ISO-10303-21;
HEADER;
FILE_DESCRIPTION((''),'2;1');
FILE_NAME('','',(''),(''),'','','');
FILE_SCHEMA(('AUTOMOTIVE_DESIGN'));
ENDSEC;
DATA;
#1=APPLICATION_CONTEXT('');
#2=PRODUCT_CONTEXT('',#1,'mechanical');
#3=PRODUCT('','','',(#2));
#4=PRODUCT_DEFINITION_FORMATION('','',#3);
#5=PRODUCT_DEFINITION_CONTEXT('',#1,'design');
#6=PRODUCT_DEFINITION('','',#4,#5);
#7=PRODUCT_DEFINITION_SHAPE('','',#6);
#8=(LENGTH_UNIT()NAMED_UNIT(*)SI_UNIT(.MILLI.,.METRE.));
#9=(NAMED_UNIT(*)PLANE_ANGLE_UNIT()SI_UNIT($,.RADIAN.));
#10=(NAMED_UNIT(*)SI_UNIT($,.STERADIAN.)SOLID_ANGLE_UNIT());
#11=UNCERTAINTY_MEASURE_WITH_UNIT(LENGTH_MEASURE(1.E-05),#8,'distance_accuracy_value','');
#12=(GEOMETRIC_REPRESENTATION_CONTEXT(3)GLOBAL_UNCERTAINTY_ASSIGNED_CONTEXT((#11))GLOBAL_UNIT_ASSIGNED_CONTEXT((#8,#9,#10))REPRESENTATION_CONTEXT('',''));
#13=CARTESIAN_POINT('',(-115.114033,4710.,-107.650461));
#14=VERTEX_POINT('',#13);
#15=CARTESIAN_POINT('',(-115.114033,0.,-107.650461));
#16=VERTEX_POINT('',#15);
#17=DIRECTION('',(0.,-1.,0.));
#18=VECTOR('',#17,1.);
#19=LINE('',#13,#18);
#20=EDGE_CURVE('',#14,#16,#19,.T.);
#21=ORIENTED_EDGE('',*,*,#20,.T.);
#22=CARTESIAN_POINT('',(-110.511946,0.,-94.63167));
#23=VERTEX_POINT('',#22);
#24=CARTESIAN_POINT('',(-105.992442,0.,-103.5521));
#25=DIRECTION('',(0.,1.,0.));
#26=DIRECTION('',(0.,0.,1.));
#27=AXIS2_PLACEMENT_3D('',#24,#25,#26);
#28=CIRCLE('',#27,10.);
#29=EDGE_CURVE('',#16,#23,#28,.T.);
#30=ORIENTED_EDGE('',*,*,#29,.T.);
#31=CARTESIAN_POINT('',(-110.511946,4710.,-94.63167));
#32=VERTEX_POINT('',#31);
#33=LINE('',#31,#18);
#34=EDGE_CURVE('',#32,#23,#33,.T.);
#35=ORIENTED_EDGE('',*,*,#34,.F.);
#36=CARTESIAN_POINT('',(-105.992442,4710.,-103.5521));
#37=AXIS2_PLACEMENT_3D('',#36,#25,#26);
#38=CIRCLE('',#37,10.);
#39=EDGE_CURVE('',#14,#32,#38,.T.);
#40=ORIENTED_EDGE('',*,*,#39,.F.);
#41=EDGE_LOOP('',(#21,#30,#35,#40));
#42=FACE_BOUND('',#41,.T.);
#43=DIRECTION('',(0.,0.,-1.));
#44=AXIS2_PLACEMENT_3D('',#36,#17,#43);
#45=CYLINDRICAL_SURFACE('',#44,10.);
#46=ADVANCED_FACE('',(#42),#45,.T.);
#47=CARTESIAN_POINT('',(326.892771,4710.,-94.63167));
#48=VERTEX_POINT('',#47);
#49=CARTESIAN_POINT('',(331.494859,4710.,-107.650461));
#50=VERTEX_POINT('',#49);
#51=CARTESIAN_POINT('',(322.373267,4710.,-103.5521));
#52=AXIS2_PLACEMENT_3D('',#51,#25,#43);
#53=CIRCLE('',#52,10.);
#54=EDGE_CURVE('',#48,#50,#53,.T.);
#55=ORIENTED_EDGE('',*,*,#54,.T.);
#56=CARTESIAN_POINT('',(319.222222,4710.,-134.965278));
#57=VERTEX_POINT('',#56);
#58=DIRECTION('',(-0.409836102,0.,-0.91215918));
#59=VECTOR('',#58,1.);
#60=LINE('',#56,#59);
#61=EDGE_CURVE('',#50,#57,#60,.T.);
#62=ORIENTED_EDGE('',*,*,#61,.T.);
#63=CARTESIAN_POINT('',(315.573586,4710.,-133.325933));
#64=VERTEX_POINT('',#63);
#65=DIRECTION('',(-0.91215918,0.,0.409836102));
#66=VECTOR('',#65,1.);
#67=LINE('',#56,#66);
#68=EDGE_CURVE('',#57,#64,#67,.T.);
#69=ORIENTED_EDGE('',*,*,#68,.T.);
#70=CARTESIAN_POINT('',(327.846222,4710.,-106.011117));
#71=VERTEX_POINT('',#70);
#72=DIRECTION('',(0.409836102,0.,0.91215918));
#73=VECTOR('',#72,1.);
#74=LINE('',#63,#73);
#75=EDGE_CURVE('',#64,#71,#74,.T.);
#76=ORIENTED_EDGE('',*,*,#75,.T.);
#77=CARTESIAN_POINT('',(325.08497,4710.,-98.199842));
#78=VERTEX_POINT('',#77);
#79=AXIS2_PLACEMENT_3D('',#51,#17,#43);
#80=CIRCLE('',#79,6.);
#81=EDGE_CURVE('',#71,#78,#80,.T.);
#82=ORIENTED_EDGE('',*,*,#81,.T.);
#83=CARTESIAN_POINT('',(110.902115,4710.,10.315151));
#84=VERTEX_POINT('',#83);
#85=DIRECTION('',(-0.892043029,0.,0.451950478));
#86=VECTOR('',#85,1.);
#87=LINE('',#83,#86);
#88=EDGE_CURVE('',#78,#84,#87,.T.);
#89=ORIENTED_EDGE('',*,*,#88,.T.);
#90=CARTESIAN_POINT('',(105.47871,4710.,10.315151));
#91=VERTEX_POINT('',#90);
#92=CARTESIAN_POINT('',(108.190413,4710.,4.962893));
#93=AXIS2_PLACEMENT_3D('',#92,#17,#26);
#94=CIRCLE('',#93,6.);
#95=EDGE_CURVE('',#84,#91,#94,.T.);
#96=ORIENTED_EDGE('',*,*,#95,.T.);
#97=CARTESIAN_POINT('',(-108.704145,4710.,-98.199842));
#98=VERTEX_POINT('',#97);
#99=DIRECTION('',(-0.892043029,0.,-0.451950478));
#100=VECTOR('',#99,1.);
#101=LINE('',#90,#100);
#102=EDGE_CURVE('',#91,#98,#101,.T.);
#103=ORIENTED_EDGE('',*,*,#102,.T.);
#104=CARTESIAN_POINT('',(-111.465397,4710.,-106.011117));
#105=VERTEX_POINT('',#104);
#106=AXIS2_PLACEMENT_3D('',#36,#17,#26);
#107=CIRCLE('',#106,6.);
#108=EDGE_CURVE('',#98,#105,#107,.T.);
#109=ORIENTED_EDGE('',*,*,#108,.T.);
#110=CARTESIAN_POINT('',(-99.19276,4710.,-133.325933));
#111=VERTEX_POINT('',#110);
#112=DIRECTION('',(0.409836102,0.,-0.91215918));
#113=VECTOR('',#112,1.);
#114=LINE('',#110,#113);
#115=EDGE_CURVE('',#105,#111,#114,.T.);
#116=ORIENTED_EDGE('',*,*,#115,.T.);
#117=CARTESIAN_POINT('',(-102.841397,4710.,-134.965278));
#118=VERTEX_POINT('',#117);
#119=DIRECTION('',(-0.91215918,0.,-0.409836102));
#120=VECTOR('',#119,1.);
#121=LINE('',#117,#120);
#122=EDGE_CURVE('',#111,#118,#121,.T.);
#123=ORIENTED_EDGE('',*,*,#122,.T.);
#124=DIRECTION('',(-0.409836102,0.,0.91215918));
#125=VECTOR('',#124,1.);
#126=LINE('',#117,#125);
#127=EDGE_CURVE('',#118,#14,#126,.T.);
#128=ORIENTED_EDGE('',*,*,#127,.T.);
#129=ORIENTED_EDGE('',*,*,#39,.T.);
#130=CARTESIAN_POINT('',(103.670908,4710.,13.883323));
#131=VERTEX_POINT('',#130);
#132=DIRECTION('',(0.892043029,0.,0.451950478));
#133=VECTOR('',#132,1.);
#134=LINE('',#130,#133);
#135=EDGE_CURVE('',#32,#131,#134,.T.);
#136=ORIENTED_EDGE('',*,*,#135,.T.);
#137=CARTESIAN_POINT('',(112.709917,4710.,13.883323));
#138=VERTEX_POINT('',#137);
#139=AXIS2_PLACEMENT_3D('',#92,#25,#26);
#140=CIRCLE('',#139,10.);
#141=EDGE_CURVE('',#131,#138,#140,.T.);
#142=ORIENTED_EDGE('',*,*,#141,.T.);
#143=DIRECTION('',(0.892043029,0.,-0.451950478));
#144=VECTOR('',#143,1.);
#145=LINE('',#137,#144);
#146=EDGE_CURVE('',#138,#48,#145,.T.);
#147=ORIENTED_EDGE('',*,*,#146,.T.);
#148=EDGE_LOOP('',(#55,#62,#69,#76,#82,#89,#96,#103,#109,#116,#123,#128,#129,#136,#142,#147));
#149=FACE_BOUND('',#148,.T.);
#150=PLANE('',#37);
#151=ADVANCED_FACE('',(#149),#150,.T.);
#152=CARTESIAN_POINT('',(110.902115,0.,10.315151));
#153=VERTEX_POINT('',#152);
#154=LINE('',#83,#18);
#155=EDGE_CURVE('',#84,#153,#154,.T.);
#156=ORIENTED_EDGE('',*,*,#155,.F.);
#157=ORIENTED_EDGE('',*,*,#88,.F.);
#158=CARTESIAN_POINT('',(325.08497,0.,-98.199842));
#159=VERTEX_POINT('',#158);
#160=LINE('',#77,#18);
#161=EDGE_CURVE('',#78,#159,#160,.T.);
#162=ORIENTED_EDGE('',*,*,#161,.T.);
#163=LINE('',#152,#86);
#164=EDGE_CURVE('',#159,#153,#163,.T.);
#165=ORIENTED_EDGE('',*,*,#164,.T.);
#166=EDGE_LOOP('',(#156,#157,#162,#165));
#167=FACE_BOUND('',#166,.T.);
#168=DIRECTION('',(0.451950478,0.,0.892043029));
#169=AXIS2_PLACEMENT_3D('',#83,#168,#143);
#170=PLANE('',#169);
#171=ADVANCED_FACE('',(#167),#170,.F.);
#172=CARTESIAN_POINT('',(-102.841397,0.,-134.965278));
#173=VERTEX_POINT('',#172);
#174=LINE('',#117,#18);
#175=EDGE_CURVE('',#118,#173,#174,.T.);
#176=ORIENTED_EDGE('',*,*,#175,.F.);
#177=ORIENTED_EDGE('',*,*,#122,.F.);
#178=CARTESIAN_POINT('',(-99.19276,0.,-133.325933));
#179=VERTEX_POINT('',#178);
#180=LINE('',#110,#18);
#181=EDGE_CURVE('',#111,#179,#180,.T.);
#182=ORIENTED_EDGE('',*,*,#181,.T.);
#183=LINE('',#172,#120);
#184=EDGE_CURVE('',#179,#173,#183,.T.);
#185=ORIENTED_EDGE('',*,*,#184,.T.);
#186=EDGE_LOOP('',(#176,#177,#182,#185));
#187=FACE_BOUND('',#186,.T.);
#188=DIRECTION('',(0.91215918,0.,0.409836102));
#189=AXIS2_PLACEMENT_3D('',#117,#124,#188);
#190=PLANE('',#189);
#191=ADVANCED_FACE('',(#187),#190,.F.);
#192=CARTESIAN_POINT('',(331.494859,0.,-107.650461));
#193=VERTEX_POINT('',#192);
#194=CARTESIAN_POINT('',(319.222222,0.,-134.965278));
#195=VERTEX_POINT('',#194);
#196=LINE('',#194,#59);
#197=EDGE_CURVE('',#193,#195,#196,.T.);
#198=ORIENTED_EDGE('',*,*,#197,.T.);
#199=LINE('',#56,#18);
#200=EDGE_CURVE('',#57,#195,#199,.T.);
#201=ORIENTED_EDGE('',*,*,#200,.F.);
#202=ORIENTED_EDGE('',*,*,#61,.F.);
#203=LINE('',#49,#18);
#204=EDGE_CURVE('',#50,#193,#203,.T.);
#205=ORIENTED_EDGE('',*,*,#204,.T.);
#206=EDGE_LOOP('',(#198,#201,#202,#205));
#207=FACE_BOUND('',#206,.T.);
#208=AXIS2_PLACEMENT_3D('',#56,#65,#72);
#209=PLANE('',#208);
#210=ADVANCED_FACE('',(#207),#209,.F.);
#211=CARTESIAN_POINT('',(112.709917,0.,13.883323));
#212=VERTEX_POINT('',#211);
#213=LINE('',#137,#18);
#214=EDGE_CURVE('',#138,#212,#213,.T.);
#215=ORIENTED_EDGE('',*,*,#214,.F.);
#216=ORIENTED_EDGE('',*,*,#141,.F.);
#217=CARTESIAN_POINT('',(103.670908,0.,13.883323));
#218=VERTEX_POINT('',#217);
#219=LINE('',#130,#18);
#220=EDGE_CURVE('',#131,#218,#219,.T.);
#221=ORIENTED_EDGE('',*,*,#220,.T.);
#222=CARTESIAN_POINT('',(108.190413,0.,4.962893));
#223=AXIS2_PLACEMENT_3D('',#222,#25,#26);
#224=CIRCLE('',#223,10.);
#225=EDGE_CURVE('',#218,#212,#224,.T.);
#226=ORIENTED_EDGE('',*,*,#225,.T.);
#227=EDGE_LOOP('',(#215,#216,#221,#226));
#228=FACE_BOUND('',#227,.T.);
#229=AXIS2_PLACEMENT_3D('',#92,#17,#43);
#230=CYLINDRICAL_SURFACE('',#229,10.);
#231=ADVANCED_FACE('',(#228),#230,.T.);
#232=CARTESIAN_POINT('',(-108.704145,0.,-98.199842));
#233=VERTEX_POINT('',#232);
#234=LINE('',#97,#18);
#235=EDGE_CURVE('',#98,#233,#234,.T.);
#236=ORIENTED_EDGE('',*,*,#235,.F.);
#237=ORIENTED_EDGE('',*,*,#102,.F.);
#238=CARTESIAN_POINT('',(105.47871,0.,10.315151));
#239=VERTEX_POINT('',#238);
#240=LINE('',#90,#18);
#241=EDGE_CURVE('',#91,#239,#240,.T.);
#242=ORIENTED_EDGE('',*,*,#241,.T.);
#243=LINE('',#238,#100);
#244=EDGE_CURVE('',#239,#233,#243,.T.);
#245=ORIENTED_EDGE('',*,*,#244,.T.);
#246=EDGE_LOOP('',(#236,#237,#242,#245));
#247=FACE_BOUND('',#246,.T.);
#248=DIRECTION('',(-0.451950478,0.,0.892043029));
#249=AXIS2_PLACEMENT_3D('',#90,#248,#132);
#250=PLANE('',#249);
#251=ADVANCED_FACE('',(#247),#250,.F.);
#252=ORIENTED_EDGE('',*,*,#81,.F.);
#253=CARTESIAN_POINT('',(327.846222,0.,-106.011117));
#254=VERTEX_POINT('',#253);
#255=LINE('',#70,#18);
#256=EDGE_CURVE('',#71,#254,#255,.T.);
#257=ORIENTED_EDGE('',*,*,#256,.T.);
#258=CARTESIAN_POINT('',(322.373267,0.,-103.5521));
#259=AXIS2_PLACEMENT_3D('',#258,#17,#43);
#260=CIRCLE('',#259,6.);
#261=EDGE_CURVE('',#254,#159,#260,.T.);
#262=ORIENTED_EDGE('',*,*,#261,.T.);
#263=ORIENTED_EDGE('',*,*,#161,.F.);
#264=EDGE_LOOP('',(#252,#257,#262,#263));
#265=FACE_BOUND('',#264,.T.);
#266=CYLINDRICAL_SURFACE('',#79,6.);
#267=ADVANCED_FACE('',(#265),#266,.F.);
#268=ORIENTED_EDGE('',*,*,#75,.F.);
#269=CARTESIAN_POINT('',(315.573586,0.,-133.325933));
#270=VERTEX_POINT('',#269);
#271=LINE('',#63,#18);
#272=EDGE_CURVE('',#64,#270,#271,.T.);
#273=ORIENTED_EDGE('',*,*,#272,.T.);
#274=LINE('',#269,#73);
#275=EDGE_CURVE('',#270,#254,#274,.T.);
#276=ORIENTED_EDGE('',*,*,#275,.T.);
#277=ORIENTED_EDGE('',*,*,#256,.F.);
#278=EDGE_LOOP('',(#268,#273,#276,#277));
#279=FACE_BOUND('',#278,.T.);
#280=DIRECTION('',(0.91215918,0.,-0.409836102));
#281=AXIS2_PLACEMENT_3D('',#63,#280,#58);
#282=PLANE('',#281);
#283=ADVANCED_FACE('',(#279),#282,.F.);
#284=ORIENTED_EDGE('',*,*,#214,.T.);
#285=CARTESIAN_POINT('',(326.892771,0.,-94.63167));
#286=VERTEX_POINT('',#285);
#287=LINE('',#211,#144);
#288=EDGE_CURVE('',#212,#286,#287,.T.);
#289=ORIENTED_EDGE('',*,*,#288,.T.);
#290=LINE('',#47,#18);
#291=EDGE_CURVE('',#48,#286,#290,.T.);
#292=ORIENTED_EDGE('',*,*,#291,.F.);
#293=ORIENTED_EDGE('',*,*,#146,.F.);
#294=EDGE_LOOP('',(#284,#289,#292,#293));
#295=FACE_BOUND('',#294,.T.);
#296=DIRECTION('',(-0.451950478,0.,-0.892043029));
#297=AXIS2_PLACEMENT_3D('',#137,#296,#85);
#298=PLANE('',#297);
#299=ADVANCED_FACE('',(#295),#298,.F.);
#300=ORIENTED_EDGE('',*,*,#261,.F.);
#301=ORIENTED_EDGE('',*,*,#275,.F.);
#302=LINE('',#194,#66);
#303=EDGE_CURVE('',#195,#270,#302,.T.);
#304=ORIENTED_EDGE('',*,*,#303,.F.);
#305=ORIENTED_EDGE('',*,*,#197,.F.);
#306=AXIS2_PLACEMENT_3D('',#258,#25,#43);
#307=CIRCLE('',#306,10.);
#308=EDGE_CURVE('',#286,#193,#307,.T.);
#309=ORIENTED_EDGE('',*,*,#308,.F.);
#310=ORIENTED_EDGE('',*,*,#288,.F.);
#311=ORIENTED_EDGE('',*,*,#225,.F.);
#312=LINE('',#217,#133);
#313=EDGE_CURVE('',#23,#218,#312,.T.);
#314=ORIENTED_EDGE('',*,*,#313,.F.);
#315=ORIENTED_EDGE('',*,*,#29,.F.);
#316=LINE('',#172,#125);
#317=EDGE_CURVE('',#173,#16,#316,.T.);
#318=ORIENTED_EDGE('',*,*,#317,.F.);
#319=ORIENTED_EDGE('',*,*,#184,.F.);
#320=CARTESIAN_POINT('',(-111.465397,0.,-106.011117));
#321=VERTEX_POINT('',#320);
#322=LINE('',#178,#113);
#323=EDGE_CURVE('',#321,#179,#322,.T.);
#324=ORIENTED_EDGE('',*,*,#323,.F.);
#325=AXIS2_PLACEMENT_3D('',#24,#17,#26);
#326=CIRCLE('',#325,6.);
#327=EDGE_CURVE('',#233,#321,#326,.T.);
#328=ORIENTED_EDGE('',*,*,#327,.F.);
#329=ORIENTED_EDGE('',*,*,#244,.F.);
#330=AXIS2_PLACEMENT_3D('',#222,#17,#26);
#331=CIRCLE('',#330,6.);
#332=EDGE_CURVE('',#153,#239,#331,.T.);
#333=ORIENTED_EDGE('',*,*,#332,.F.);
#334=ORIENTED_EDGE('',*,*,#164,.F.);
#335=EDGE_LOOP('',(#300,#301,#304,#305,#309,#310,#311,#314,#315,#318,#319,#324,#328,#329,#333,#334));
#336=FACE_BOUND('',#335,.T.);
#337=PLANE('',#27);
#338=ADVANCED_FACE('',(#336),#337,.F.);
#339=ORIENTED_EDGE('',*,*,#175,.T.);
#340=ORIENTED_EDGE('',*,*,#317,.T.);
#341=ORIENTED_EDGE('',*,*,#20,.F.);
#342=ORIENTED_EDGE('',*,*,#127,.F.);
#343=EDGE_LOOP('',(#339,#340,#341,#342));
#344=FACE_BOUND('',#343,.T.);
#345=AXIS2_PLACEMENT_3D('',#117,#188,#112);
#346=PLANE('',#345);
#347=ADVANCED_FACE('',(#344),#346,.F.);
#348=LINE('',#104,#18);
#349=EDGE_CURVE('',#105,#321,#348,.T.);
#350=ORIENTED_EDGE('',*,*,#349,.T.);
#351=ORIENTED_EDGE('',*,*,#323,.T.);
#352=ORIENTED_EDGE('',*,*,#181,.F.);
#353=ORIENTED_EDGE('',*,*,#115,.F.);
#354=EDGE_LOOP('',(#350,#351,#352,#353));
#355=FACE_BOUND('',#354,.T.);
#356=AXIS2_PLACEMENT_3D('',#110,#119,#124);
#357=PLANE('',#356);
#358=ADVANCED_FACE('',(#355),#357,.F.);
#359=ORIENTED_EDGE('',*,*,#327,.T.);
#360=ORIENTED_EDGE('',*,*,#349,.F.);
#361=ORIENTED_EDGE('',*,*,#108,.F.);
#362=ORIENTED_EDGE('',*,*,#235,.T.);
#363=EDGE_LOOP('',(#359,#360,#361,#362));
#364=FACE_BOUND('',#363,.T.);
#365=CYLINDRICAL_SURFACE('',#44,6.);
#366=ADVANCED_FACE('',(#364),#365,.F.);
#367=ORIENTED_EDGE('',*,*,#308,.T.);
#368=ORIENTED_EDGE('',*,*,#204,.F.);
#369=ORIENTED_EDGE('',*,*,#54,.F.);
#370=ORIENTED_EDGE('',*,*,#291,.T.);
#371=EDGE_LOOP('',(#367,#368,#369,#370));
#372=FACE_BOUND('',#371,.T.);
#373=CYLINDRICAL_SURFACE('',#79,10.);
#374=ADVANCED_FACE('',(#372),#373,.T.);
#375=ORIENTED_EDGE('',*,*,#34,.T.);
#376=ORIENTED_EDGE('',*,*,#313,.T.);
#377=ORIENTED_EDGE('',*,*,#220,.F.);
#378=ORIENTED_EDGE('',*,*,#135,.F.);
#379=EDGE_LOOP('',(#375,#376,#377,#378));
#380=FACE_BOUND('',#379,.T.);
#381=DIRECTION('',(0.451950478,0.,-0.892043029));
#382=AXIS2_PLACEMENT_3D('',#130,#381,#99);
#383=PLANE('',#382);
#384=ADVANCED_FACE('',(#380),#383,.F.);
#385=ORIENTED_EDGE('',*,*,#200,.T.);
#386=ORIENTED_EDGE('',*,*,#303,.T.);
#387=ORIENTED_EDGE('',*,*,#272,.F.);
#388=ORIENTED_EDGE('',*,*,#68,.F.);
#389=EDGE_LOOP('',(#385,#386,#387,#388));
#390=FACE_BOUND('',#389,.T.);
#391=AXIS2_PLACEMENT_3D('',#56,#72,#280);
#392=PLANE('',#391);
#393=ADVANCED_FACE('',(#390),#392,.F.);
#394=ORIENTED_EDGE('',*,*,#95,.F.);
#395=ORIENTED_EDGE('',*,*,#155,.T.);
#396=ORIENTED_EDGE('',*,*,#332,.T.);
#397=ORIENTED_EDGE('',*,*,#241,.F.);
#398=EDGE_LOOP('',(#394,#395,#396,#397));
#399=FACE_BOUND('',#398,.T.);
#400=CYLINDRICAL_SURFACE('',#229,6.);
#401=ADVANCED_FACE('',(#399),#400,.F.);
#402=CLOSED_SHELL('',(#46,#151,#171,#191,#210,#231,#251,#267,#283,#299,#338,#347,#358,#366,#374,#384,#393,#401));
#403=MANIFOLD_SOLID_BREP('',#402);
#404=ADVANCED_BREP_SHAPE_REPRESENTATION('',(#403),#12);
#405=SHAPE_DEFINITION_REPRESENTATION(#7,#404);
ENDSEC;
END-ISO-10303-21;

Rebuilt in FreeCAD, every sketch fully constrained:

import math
import FreeCAD as App
import Part
import Sketcher

V = App.Vector
Q = App.Units.Quantity

doc = App.newDocument("Part")
body = doc.addObject("PartDesign::Body", "Body")

# Sketch on XZ plane
sketch1 = doc.addObject("Sketcher::SketchObject", "Sketch")
body.addObject(sketch1)
sketch1.AttachmentSupport = (doc.XZ_Plane, [""])
sketch1.MapMode = "FlatFace"
sketch1.addGeometry([
    Part.LineSegment(V(331.5, -107.7, 0), V(319.2, -135, 0)),  # 0
    Part.LineSegment(V(319.2, -135, 0), V(315.6, -133.3, 0)),  # 1
    Part.LineSegment(V(315.6, -133.3, 0), V(327.8, -106, 0)),  # 2
    Part.ArcOfCircle(Part.Circle(V(322.4, -103.6, 0), V(0, 0, 1), 6), math.radians(-24), math.radians(63)),  # 3
    Part.LineSegment(V(325.1, -98.2, 0), V(110.9, 10.3, 0)),  # 4
    Part.ArcOfCircle(Part.Circle(V(108.2, 5, 0), V(0, 0, 1), 6), math.radians(63), math.radians(117)),  # 5
    Part.LineSegment(V(105.5, 10.3, 0), V(-108.7, -98.2, 0)),  # 6
    Part.ArcOfCircle(Part.Circle(V(-106, -103.6, 0), V(0, 0, 1), 6), math.radians(117), math.radians(204)),  # 7
    Part.LineSegment(V(-111.5, -106, 0), V(-99.2, -133.3, 0)),  # 8
    Part.LineSegment(V(-99.2, -133.3, 0), V(-102.8, -135, 0)),  # 9
    Part.LineSegment(V(-102.8, -135, 0), V(-115.1, -107.7, 0)),  # 10
    Part.ArcOfCircle(Part.Circle(V(-106, -103.6, 0), V(0, 0, 1), 10), math.radians(117), math.radians(204)),  # 11
    Part.LineSegment(V(-110.5, -94.6, 0), V(103.7, 13.9, 0)),  # 12
    Part.ArcOfCircle(Part.Circle(V(108.2, 5, 0), V(0, 0, 1), 10), math.radians(63), math.radians(117)),  # 13
    Part.LineSegment(V(112.7, 13.9, 0), V(326.9, -94.6, 0)),  # 14
    Part.ArcOfCircle(Part.Circle(V(322.4, -103.6, 0), V(0, 0, 1), 10), math.radians(-24), math.radians(63)),  # 15
], False)
sketch1.addConstraint([
    Sketcher.Constraint("Coincident", 0, 2, 1, 1),
    Sketcher.Constraint("Coincident", 1, 2, 2, 1),
    Sketcher.Constraint("Tangent", 2, 2, 3, 1),
    Sketcher.Constraint("Tangent", 3, 2, 4, 1),
    Sketcher.Constraint("Tangent", 4, 2, 5, 1),
    Sketcher.Constraint("Tangent", 5, 2, 6, 1),
    Sketcher.Constraint("Tangent", 6, 2, 7, 1),
    Sketcher.Constraint("Tangent", 7, 2, 8, 1),
    Sketcher.Constraint("Coincident", 8, 2, 9, 1),
    Sketcher.Constraint("Coincident", 9, 2, 10, 1),
    Sketcher.Constraint("Tangent", 10, 2, 11, 2),
    Sketcher.Constraint("Tangent", 11, 1, 12, 1),
    Sketcher.Constraint("Tangent", 12, 2, 13, 2),
    Sketcher.Constraint("Tangent", 13, 1, 14, 1),
    Sketcher.Constraint("Tangent", 14, 2, 15, 2),
    Sketcher.Constraint("Tangent", 15, 1, 0, 1),
    Sketcher.Constraint("Coincident", 11, 3, 7, 3),
    Sketcher.Constraint("Coincident", 13, 3, 5, 3),
    Sketcher.Constraint("Coincident", 15, 3, 3, 3),
    Sketcher.Constraint("Equal", 3, 5),
    Sketcher.Constraint("Equal", 5, 7),
    Sketcher.Constraint("Equal", 11, 13),
    Sketcher.Constraint("Equal", 13, 15),
    Sketcher.Constraint("Perpendicular", 0, 1),
    Sketcher.Constraint("Perpendicular", 1, 2),
    Sketcher.Constraint("Perpendicular", 8, 9),
    Sketcher.Constraint("Perpendicular", 9, 10),
    Sketcher.Constraint("Horizontal", 3, 3, 7, 3),
    Sketcher.Constraint("Horizontal", 2, 2, 7, 2),
    Sketcher.Constraint("Horizontal", 1, 2, 8, 2),
    Sketcher.Constraint("Equal", 4, 6),
    Sketcher.Constraint("Radius", 3, Q("6 mm")),
    Sketcher.Constraint("Radius", 11, Q("10 mm")),
    Sketcher.Constraint("DistanceX", 0, 2, 2, 2, Q("8.624 mm")),
    Sketcher.Constraint("DistanceY", 3, 3, -1, 1, Q("103.5521 mm")),
    Sketcher.Constraint("Distance", 0, Q("29.94523 mm")),
    Sketcher.Constraint("DistanceX", 7, 3, -1, 1, Q("105.992442 mm")),
    Sketcher.Constraint("DistanceX", -1, 1, 2, 2, Q("327.846222 mm")),
    Sketcher.Constraint("DistanceY", -1, 1, 4, 2, Q("10.315151 mm")),
])
pad1 = doc.addObject("PartDesign::Pad", "Pad")
body.addObject(pad1)
pad1.Profile = sketch1
pad1.Length = 4710
pad1.Reversed = True

doc.recompute()
